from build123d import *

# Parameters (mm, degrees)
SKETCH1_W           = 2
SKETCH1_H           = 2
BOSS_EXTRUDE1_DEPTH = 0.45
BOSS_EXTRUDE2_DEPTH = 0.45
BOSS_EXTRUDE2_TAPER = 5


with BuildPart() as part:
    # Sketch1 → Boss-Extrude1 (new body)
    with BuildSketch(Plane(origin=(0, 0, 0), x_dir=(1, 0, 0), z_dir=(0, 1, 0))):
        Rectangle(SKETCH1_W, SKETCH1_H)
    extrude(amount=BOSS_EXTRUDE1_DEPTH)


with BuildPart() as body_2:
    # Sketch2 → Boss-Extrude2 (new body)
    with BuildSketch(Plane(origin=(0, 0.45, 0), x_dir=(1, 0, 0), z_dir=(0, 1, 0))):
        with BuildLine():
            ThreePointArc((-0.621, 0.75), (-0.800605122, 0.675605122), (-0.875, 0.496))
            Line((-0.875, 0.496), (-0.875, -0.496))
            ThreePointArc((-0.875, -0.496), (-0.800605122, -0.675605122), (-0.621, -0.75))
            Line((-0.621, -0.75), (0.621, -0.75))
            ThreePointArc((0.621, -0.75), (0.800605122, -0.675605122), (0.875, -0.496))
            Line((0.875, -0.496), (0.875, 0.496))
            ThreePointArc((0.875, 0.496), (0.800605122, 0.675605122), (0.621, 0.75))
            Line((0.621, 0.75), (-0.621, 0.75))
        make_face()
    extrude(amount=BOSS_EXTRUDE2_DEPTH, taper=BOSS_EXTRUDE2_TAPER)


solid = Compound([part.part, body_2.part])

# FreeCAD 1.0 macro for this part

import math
import FreeCAD as App
import Part
import Sketcher
from FreeCAD import Vector
Q = App.Units.Quantity

doc = App.newDocument("Part")
body = doc.addObject("PartDesign::Body", "Body")

# Sketch on XZ plane
sketch1 = body.newObject("Sketcher::SketchObject", "Sketch")
sketch1.AttachmentSupport = (doc.getObject("XZ_Plane"), [""])
sketch1.MapMode = "FlatFace"
sketch1.addGeometry(Part.LineSegment(Vector(-1, -1, 0), Vector(-1, 1, 0)), False)
sketch1.addGeometry(Part.LineSegment(Vector(-1, 1, 0), Vector(1, 1, 0)), False)
sketch1.addGeometry(Part.LineSegment(Vector(1, 1, 0), Vector(1, -1, 0)), False)
sketch1.addGeometry(Part.LineSegment(Vector(1, -1, 0), Vector(-1, -1, 0)), False)
sketch1.addConstraint(Sketcher.Constraint("Coincident", 0, 2, 1, 1))
sketch1.addConstraint(Sketcher.Constraint("Coincident", 1, 2, 2, 1))
sketch1.addConstraint(Sketcher.Constraint("Coincident", 2, 2, 3, 1))
sketch1.addConstraint(Sketcher.Constraint("Coincident", 3, 2, 0, 1))
sketch1.addConstraint(Sketcher.Constraint("Vertical", 0))
sketch1.addConstraint(Sketcher.Constraint("Horizontal", 1))
sketch1.addConstraint(Sketcher.Constraint("Vertical", 2))
sketch1.addConstraint(Sketcher.Constraint("Horizontal", 3))
sketch1.addConstraint(Sketcher.Constraint("Symmetric", 0, 2, 2, 2, -1, 1))
sketch1.addConstraint(Sketcher.Constraint("Equal", 3, 0))
sketch1.addConstraint(Sketcher.Constraint("DistanceX", 1, 1, 1, 2, Q("2 mm")))
pad1 = body.newObject("PartDesign::Pad", "Pad")
pad1.Profile = sketch1
pad1.Length = 0.45
pad1.Reversed = True
body2 = doc.addObject("PartDesign::Body", "Body001")

# Sketch on XZ plane
sketch2 = body2.newObject("Sketcher::SketchObject", "Sketch001")
sketch2.AttachmentSupport = (doc.getObject("XZ_Plane001"), [""])
sketch2.MapMode = "FlatFace"
sketch2.AttachmentOffset = App.Placement(Vector(0, 0, -0.45), App.Rotation())
sketch2.addGeometry(Part.ArcOfCircle(Part.Circle(Vector(-0.62, -0.5, 0), Vector(0, 0, 1), 0.25), math.radians(-180), math.radians(-90)), False)
sketch2.addGeometry(Part.LineSegment(Vector(-0.88, -0.5, 0), Vector(-0.88, 0.5, 0)), False)
sketch2.addGeometry(Part.ArcOfCircle(Part.Circle(Vector(-0.62, 0.5, 0), Vector(0, 0, 1), 0.25), math.radians(90), math.radians(180)), False)
sketch2.addGeometry(Part.LineSegment(Vector(-0.62, 0.75, 0), Vector(0.62, 0.75, 0)), False)
sketch2.addGeometry(Part.ArcOfCircle(Part.Circle(Vector(0.62, 0.5, 0), Vector(0, 0, 1), 0.25), math.radians(0), math.radians(90)), False)
sketch2.addGeometry(Part.LineSegment(Vector(0.88, 0.5, 0), Vector(0.88, -0.5, 0)), False)
sketch2.addGeometry(Part.ArcOfCircle(Part.Circle(Vector(0.62, -0.5, 0), Vector(0, 0, 1), 0.25), math.radians(-90), math.radians(0)), False)
sketch2.addGeometry(Part.LineSegment(Vector(0.62, -0.75, 0), Vector(-0.62, -0.75, 0)), False)
sketch2.addConstraint(Sketcher.Constraint("Tangent", 0, 1, 1, 1))
sketch2.addConstraint(Sketcher.Constraint("Tangent", 1, 2, 2, 2))
sketch2.addConstraint(Sketcher.Constraint("Tangent", 2, 1, 3, 1))
sketch2.addConstraint(Sketcher.Constraint("Tangent", 3, 2, 4, 2))
sketch2.addConstraint(Sketcher.Constraint("Tangent", 4, 1, 5, 1))
sketch2.addConstraint(Sketcher.Constraint("Tangent", 5, 2, 6, 2))
sketch2.addConstraint(Sketcher.Constraint("Tangent", 6, 1, 7, 1))
sketch2.addConstraint(Sketcher.Constraint("Tangent", 7, 2, 0, 2))
sketch2.addConstraint(Sketcher.Constraint("Vertical", 1))
sketch2.addConstraint(Sketcher.Constraint("Horizontal", 3))
sketch2.addConstraint(Sketcher.Constraint("Vertical", 5))
sketch2.addConstraint(Sketcher.Constraint("Horizontal", 7))
sketch2.addConstraint(Sketcher.Constraint("Equal", 0, 2))
sketch2.addConstraint(Sketcher.Constraint("Equal", 2, 4))
sketch2.addConstraint(Sketcher.Constraint("Equal", 4, 6))
sketch2.addConstraint(Sketcher.Constraint("Symmetric", 0, 3, 4, 3, -1, 1))
sketch2.addConstraint(Sketcher.Constraint("Radius", 0, Q("0.254 mm")))
sketch2.addConstraint(Sketcher.Constraint("DistanceX", 3, 1, 3, 2, Q("1.242 mm")))
sketch2.addConstraint(Sketcher.Constraint("DistanceY", 1, 1, 1, 2, Q("0.992 mm")))
pad2 = body2.newObject("PartDesign::Pad", "Pad001")
pad2.Profile = sketch2
pad2.Length = 0.45
pad2.Reversed = True
pad2.TaperAngle = -5

doc.recompute()
